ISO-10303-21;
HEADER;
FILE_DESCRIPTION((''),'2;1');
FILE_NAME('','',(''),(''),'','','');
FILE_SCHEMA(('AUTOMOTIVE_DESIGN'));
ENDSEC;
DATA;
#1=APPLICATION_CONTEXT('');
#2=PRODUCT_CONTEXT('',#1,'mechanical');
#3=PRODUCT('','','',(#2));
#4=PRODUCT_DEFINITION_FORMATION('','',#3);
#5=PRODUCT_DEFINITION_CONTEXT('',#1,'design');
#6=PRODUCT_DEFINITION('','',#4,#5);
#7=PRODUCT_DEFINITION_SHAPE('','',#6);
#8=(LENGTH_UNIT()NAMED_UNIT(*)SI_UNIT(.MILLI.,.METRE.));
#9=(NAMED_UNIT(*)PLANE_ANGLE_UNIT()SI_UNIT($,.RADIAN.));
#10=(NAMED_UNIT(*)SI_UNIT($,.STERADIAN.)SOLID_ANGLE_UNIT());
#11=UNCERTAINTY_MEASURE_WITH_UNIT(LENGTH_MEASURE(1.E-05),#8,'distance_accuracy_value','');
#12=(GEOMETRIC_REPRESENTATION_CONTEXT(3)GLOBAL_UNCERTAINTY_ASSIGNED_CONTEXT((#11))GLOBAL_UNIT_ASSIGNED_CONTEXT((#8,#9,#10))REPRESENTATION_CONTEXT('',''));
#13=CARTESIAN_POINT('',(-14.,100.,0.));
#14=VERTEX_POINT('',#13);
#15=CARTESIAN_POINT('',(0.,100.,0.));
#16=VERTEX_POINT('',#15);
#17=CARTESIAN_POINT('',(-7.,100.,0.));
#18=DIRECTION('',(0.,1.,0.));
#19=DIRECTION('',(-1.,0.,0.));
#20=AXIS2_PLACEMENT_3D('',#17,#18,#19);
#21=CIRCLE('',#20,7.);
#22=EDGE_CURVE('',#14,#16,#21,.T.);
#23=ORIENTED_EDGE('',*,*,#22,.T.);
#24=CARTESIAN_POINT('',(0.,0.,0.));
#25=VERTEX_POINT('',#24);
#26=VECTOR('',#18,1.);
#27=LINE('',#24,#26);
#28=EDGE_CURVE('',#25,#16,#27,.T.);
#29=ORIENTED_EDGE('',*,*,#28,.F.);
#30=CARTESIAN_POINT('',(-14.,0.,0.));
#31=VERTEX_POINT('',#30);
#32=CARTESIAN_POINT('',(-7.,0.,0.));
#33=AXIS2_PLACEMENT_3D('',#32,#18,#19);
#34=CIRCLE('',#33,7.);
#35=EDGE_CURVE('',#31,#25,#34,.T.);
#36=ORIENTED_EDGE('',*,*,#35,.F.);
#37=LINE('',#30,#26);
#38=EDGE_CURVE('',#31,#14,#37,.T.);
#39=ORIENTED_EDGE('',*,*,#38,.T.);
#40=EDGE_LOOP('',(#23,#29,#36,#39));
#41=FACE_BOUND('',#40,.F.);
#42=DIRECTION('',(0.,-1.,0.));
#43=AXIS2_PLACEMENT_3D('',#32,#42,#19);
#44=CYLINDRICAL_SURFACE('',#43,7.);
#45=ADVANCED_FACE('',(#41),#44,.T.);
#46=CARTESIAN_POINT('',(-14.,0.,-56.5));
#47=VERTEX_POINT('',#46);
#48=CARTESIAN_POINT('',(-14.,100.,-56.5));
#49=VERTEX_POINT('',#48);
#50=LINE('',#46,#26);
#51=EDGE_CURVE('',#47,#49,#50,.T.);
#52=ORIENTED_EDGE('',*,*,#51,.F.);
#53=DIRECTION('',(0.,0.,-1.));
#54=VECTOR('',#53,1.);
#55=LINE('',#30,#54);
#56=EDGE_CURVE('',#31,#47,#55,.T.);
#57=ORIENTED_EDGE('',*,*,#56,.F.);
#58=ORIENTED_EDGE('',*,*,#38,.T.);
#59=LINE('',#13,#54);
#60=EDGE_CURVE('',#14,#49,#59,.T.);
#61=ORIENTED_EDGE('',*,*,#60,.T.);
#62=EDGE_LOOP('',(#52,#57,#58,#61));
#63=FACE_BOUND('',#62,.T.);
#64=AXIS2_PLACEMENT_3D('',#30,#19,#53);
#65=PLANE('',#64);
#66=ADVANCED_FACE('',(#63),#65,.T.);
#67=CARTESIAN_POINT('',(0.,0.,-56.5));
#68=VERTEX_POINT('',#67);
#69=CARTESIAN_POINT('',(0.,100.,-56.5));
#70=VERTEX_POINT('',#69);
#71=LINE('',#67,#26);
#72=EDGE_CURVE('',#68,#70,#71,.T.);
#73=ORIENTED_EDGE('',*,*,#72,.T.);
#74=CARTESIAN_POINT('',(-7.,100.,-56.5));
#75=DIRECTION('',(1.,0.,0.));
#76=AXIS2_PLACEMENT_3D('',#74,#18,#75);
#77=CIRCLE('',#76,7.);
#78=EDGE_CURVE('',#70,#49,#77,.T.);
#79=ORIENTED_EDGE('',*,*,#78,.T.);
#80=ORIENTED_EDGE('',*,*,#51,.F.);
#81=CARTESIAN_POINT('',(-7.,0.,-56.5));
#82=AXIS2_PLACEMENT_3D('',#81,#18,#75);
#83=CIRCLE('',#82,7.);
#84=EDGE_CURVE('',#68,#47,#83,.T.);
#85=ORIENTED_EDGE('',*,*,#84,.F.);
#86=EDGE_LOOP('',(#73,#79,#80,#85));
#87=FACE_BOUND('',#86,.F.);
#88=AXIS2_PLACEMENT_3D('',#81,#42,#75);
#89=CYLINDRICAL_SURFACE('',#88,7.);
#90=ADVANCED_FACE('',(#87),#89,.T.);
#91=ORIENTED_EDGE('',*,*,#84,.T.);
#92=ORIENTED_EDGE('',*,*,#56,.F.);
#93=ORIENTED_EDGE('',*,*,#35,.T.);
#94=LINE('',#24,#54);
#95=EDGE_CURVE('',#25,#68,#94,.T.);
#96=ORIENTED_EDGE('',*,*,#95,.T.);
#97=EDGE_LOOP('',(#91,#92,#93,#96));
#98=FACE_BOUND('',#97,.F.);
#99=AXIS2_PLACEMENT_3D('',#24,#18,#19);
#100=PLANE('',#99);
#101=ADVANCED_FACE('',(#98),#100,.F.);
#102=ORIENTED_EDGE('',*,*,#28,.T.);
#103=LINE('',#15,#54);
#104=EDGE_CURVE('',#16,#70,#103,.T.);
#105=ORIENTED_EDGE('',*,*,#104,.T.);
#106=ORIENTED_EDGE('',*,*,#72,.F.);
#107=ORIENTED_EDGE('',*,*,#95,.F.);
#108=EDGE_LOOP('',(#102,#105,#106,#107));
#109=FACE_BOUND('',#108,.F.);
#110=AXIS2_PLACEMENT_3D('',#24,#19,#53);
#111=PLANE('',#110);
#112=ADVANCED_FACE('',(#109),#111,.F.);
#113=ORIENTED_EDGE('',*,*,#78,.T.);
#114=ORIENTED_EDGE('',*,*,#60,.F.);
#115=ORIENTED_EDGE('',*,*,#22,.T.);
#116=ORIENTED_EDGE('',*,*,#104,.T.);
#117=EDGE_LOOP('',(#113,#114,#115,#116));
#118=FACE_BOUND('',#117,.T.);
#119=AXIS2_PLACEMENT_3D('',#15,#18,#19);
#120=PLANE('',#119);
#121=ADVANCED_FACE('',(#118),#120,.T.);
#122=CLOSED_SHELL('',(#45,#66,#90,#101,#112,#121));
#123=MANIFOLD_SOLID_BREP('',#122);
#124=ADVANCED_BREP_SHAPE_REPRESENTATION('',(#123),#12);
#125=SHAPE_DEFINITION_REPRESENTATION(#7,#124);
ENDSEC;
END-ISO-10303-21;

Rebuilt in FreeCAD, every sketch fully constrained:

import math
import FreeCAD as App
import Part
import Sketcher

V = App.Vector
Q = App.Units.Quantity

doc = App.newDocument("Part")
body = doc.addObject("PartDesign::Body", "Body")

sketch1 = body.newObject("Sketcher::SketchObject", "Sketch")
sketch1.AttachmentSupport = (doc.getObject("XZ_Plane"), [""])
sketch1.MapMode = "FlatFace"
sketch1.addGeometry([
    Part.LineSegment(V(-14, -56, 0), V(-14, 0, 0)),
    Part.ArcOfCircle(Part.Circle(V(-7, 0, 0), V(0, 0, 1), 7), math.radians(0), math.radians(180)),
    Part.LineSegment(V(0, 0, 0), V(0, -56, 0)),
    Part.ArcOfCircle(Part.Circle(V(-7, -56, 0), V(0, 0, 1), 7), math.radians(180), math.radians(360)),
], False)
sketch1.addConstraint([
    Sketcher.Constraint("Tangent", 0, 2, 1, 2),
    Sketcher.Constraint("Tangent", 1, 1, 2, 1),
    Sketcher.Constraint("Tangent", 2, 2, 3, 2),
    Sketcher.Constraint("Tangent", 3, 1, 0, 1),
    Sketcher.Constraint("Vertical", 0),
    Sketcher.Constraint("Vertical", 2),
    Sketcher.Constraint("Coincident", 1, 1, -1, 1),
    Sketcher.Constraint("Radius", 1, Q("7 mm")),
    Sketcher.Constraint("DistanceY", 0, 1, 0, 2, Q("56.5 mm")),
])
pad1 = body.newObject("PartDesign::Pad", "Pad")
pad1.Profile = sketch1
pad1.Length = 100
pad1.Reversed = True

doc.recompute()
